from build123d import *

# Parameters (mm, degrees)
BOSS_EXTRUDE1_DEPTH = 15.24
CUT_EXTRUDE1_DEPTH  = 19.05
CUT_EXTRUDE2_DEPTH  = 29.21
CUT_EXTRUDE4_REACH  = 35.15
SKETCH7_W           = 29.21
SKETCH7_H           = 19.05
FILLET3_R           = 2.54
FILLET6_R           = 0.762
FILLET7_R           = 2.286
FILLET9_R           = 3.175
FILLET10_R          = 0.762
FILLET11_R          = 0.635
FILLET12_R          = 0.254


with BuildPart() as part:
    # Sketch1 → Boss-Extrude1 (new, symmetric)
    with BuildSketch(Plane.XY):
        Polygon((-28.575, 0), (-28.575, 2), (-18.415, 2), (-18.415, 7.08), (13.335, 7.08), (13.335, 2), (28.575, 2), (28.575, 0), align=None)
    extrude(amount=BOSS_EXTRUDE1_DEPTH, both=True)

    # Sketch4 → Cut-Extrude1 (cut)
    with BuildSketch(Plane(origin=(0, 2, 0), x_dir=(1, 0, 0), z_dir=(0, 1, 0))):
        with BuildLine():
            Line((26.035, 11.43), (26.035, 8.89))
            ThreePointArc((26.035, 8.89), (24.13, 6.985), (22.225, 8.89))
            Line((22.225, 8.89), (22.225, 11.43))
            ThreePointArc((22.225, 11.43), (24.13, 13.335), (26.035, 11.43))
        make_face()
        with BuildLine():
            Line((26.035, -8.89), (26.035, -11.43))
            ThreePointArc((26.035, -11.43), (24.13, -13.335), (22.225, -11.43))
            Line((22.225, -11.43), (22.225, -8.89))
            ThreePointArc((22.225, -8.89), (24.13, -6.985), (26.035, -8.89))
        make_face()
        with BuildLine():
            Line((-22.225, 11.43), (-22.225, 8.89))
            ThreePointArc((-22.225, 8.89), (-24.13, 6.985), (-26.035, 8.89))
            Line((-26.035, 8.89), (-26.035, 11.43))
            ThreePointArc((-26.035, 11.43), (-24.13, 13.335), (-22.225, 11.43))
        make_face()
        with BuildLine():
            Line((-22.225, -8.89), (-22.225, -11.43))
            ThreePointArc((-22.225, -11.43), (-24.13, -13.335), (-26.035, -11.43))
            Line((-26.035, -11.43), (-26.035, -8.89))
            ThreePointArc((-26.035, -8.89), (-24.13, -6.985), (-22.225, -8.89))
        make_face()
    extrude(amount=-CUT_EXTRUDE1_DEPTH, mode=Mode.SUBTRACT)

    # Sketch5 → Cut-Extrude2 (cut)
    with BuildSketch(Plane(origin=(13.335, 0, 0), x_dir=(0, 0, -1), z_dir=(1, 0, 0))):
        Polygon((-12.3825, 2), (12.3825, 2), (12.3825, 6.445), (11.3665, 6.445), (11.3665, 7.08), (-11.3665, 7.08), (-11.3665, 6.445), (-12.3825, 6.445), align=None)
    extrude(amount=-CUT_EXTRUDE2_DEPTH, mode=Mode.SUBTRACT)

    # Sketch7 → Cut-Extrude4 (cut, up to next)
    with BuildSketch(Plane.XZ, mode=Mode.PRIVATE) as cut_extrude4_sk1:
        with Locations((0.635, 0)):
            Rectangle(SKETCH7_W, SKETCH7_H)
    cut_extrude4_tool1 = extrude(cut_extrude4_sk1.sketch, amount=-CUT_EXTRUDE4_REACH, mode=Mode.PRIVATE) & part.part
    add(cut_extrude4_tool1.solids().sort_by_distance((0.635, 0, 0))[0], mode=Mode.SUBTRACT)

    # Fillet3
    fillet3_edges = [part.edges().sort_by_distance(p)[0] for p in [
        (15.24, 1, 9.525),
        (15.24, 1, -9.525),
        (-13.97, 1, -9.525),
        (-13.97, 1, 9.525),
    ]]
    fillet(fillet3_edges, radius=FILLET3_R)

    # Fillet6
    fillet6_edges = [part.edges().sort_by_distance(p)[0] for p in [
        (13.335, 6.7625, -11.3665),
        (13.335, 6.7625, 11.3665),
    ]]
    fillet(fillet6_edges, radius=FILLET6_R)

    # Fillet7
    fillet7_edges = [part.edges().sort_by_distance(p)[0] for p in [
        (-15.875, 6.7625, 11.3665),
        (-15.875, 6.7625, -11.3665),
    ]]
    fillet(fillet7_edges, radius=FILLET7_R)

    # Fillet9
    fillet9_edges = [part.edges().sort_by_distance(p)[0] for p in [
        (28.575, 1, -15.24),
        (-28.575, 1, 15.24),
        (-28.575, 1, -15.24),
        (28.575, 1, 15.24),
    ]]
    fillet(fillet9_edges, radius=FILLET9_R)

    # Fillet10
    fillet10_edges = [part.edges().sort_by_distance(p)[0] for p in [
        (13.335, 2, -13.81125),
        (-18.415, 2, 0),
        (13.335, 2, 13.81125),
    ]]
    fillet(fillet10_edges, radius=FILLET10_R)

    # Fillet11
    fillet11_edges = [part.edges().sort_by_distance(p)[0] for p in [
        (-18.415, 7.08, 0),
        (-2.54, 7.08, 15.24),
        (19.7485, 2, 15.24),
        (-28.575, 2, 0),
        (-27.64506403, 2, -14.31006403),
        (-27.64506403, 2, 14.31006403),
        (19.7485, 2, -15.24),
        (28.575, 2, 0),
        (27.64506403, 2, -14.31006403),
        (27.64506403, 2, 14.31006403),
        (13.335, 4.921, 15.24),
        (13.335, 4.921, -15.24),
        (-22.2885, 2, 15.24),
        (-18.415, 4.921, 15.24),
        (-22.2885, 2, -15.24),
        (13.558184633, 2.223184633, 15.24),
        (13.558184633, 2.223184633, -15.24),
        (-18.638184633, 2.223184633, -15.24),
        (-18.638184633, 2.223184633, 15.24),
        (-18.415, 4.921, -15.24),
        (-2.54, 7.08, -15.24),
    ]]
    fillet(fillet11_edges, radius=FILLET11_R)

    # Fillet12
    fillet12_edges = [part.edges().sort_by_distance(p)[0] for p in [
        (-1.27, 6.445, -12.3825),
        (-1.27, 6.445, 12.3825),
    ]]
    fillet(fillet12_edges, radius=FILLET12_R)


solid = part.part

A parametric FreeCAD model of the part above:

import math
import FreeCAD as App
import Part
import Sketcher
Q = App.Units.Quantity


def edges_at(feature, points):
    """Names of the edges that pass closest to the given points."""
    edges = feature.Shape.Edges
    near = lambda p: min(range(len(edges)), key=lambda i: edges[i].distToShape(Part.Vertex(*p))[0])
    return sorted({f"Edge{near(p) + 1}" for p in points})

doc = App.newDocument("Part")
body = doc.addObject("PartDesign::Body", "Body")

# Sketch on XY plane
sketch1 = doc.addObject("Sketcher::SketchObject", "Sketch")
body.addObject(sketch1)
sketch1.AttachmentSupport = (doc.XY_Plane, [""])
sketch1.MapMode = "FlatFace"
sketch1.addGeometry(Part.LineSegment(App.Vector(-28.6, 2, 0), App.Vector(-28.6, 0, 0)), False)
sketch1.addGeometry(Part.LineSegment(App.Vector(-28.6, 0, 0), App.Vector(28.6, 0, 0)), False)
sketch1.addGeometry(Part.LineSegment(App.Vector(28.6, 0, 0), App.Vector(28.6, 2, 0)), False)
sketch1.addGeometry(Part.LineSegment(App.Vector(28.6, 2, 0), App.Vector(13.3, 2, 0)), False)
sketch1.addGeometry(Part.LineSegment(App.Vector(13.3, 2, 0), App.Vector(13.3, 7.1, 0)), False)
sketch1.addGeometry(Part.LineSegment(App.Vector(13.3, 7.1, 0), App.Vector(-18.4, 7.1, 0)), False)
sketch1.addGeometry(Part.LineSegment(App.Vector(-18.4, 7.1, 0), App.Vector(-18.4, 2, 0)), False)
sketch1.addGeometry(Part.LineSegment(App.Vector(-18.4, 2, 0), App.Vector(-28.6, 2, 0)), False)
sketch1.addConstraint(Sketcher.Constraint("Coincident", 0, 2, 1, 1))
sketch1.addConstraint(Sketcher.Constraint("Coincident", 1, 2, 2, 1))
sketch1.addConstraint(Sketcher.Constraint("Coincident", 2, 2, 3, 1))
sketch1.addConstraint(Sketcher.Constraint("Coincident", 3, 2, 4, 1))
sketch1.addConstraint(Sketcher.Constraint("Coincident", 4, 2, 5, 1))
sketch1.addConstraint(Sketcher.Constraint("Coincident", 5, 2, 6, 1))
sketch1.addConstraint(Sketcher.Constraint("Coincident", 6, 2, 7, 1))
sketch1.addConstraint(Sketcher.Constraint("Coincident", 7, 2, 0, 1))
sketch1.addConstraint(Sketcher.Constraint("Vertical", 0))
sketch1.addConstraint(Sketcher.Constraint("Horizontal", 1))
sketch1.addConstraint(Sketcher.Constraint("Vertical", 2))
sketch1.addConstraint(Sketcher.Constraint("Horizontal", 3))
sketch1.addConstraint(Sketcher.Constraint("Vertical", 4))
sketch1.addConstraint(Sketcher.Constraint("Horizontal", 5))
sketch1.addConstraint(Sketcher.Constraint("Vertical", 6))
sketch1.addConstraint(Sketcher.Constraint("Horizontal", 7))
sketch1.addConstraint(Sketcher.Constraint("Symmetric", 0, 2, 1, 2, -1, 1))
sketch1.addConstraint(Sketcher.Constraint("Horizontal", 3, 2, 6, 2))
sketch1.addConstraint(Sketcher.Constraint("DistanceX", 3, 2, 3, 1, Q("0.6 in")))
sketch1.addConstraint(Sketcher.Constraint("DistanceX", 7, 2, 7, 1, Q("0.4 in")))
sketch1.addConstraint(Sketcher.Constraint("DistanceY", 4, 1, 4, 2, Q("0.2 in")))
sketch1.addConstraint(Sketcher.Constraint("DistanceX", 1, 1, 1, 2, Q("2.25 in")))
sketch1.addConstraint(Sketcher.Constraint("DistanceY", 0, 2, 0, 1, 2.0))
pad1 = doc.addObject("PartDesign::Pad", "Pad")
body.addObject(pad1)
pad1.Profile = sketch1
pad1.Length = Q("1.2 in")
pad1.Midplane = True

# Sketch on XZ plane
sketch2 = doc.addObject("Sketcher::SketchObject", "Sketch001")
body.addObject(sketch2)
sketch2.AttachmentSupport = (doc.XZ_Plane, [""])
sketch2.MapMode = "FlatFace"
sketch2.AttachmentOffset = App.Placement(App.Vector(0, 0, -2), App.Rotation())
sketch2.addGeometry(Part.LineSegment(App.Vector(26, -8.9, 0), App.Vector(26, -11.4, 0)), False)
sketch2.addGeometry(Part.ArcOfCircle(Part.Circle(App.Vector(24.1, -11.4, 0), App.Vector(0, 0, 1), 1.9), math.radians(180), math.radians(360)), False)
sketch2.addGeometry(Part.LineSegment(App.Vector(22.2, -11.4, 0), App.Vector(22.2, -8.9, 0)), False)
sketch2.addGeometry(Part.ArcOfCircle(Part.Circle(App.Vector(24.1, -8.9, 0), App.Vector(0, 0, 1), 1.9), math.radians(0), math.radians(180)), False)
sketch2.addGeometry(Part.LineSegment(App.Vector(26, 11.4, 0), App.Vector(26, 8.9, 0)), False)
sketch2.addGeometry(Part.ArcOfCircle(Part.Circle(App.Vector(24.1, 8.9, 0), App.Vector(0, 0, 1), 1.9), math.radians(180), math.radians(360)), False)
sketch2.addGeometry(Part.LineSegment(App.Vector(22.2, 8.9, 0), App.Vector(22.2, 11.4, 0)), False)
sketch2.addGeometry(Part.ArcOfCircle(Part.Circle(App.Vector(24.1, 11.4, 0), App.Vector(0, 0, 1), 1.9), math.radians(0), math.radians(180)), False)
sketch2.addGeometry(Part.LineSegment(App.Vector(-22.2, -8.9, 0), App.Vector(-22.2, -11.4, 0)), False)
sketch2.addGeometry(Part.ArcOfCircle(Part.Circle(App.Vector(-24.1, -11.4, 0), App.Vector(0, 0, 1), 1.9), math.radians(180), math.radians(360)), False)
sketch2.addGeometry(Part.LineSegment(App.Vector(-26, -11.4, 0), App.Vector(-26, -8.9, 0)), False)
sketch2.addGeometry(Part.ArcOfCircle(Part.Circle(App.Vector(-24.1, -8.9, 0), App.Vector(0, 0, 1), 1.9), math.radians(0), math.radians(180)), False)
sketch2.addGeometry(Part.LineSegment(App.Vector(-22.2, 11.4, 0), App.Vector(-22.2, 8.9, 0)), False)
sketch2.addGeometry(Part.ArcOfCircle(Part.Circle(App.Vector(-24.1, 8.9, 0), App.Vector(0, 0, 1), 1.9), math.radians(180), math.radians(360)), False)
sketch2.addGeometry(Part.LineSegment(App.Vector(-26, 8.9, 0), App.Vector(-26, 11.4, 0)), False)
sketch2.addGeometry(Part.ArcOfCircle(Part.Circle(App.Vector(-24.1, 11.4, 0), App.Vector(0, 0, 1), 1.9), math.radians(0), math.radians(180)), False)
sketch2.addConstraint(Sketcher.Constraint("Tangent", 0, 2, 1, 2))
sketch2.addConstraint(Sketcher.Constraint("Tangent", 1, 1, 2, 1))
sketch2.addConstraint(Sketcher.Constraint("Tangent", 2, 2, 3, 2))
sketch2.addConstraint(Sketcher.Constraint("Tangent", 3, 1, 0, 1))
sketch2.addConstraint(Sketcher.Constraint("Tangent", 4, 2, 5, 2))
sketch2.addConstraint(Sketcher.Constraint("Tangent", 5, 1, 6, 1))
sketch2.addConstraint(Sketcher.Constraint("Tangent", 6, 2, 7, 2))
sketch2.addConstraint(Sketcher.Constraint("Tangent", 7, 1, 4, 1))
sketch2.addConstraint(Sketcher.Constraint("Tangent", 8, 2, 9, 2))
sketch2.addConstraint(Sketcher.Constraint("Tangent", 9, 1, 10, 1))
sketch2.addConstraint(Sketcher.Constraint("Tangent", 10, 2, 11, 2))
sketch2.addConstraint(Sketcher.Constraint("Tangent", 11, 1, 8, 1))
sketch2.addConstraint(Sketcher.Constraint("Tangent", 12, 2, 13, 2))
sketch2.addConstraint(Sketcher.Constraint("Tangent", 13, 1, 14, 1))
sketch2.addConstraint(Sketcher.Constraint("Tangent", 14, 2, 15, 2))
sketch2.addConstraint(Sketcher.Constraint("Tangent", 15, 1, 12, 1))
sketch2.addConstraint(Sketcher.Constraint("Vertical", 0))
sketch2.addConstraint(Sketcher.Constraint("Vertical", 2))
sketch2.addConstraint(Sketcher.Constraint("Vertical", 4))
sketch2.addConstraint(Sketcher.Constraint("Vertical", 6))
sketch2.addConstraint(Sketcher.Constraint("Vertical", 8))
sketch2.addConstraint(Sketcher.Constraint("Vertical", 10))
sketch2.addConstraint(Sketcher.Constraint("Vertical", 12))
sketch2.addConstraint(Sketcher.Constraint("Vertical", 14))
sketch2.addConstraint(Sketcher.Constraint("Equal", 3, 5))
sketch2.addConstraint(Sketcher.Constraint("Equal", 7, 9))
sketch2.addConstraint(Sketcher.Constraint("Equal", 11, 13))
sketch2.addConstraint(Sketcher.Constraint("Symmetric", 7, 3, 9, 3, -1, 1))
sketch2.addConstraint(Sketcher.Constraint("Symmetric", 3, 3, 13, 3, -1, 1))
sketch2.addConstraint(Sketcher.Constraint("Symmetric", 1, 3, 9, 3, -2))
sketch2.addConstraint(Sketcher.Constraint("Horizontal", 3, 3, 11, 3))
sketch2.addConstraint(Sketcher.Constraint("Horizontal", 5, 3, 13, 3))
sketch2.addConstraint(Sketcher.Constraint("Horizontal", 7, 3, 15, 3))
sketch2.addConstraint(Sketcher.Constraint("DistanceY", 0, 2, 0, 1, Q("0.1 in")))
sketch2.addConstraint(Sketcher.Constraint("Radius", 1, Q("0.075 in")))
sketch2.addConstraint(Sketcher.Constraint("DistanceY", 3, 3, 5, 3, Q("0.7 in")))
sketch2.addConstraint(Sketcher.Constraint("DistanceX", 9, 3, 1, 3, Q("1.9 in")))
pocket1 = doc.addObject("PartDesign::Pocket", "Pocket")
body.addObject(pocket1)
pocket1.Profile = sketch2
pocket1.Length = Q("0.75 in")
pocket1.Reversed = True

# Sketch on YZ plane
sketch3 = doc.addObject("Sketcher::SketchObject", "Sketch002")
body.addObject(sketch3)
sketch3.AttachmentSupport = (doc.YZ_Plane, [""])
sketch3.MapMode = "FlatFace"
sketch3.AttachmentOffset = App.Placement(App.Vector(0, 0, 0.525 * 25.4), App.Rotation())
sketch3.addGeometry(Part.LineSegment(App.Vector(2, 12.4, 0), App.Vector(2, -12.4, 0)), False)
sketch3.addGeometry(Part.LineSegment(App.Vector(2, -12.4, 0), App.Vector(6.4, -12.4, 0)), False)
sketch3.addGeometry(Part.LineSegment(App.Vector(6.4, -12.4, 0), App.Vector(6.4, -11.4, 0)), False)
sketch3.addGeometry(Part.LineSegment(App.Vector(6.4, -11.4, 0), App.Vector(7.1, -11.4, 0)), False)
sketch3.addGeometry(Part.LineSegment(App.Vector(7.1, -11.4, 0), App.Vector(7.1, 11.4, 0)), False)
sketch3.addGeometry(Part.LineSegment(App.Vector(7.1, 11.4, 0), App.Vector(6.4, 11.4, 0)), False)
sketch3.addGeometry(Part.LineSegment(App.Vector(6.4, 11.4, 0), App.Vector(6.4, 12.4, 0)), False)
sketch3.addGeometry(Part.LineSegment(App.Vector(6.4, 12.4, 0), App.Vector(2, 12.4, 0)), False)
sketch3.addConstraint(Sketcher.Constraint("Coincident", 0, 2, 1, 1))
sketch3.addConstraint(Sketcher.Constraint("Coincident", 1, 2, 2, 1))
sketch3.addConstraint(Sketcher.Constraint("Coincident", 2, 2, 3, 1))
sketch3.addConstraint(Sketcher.Constraint("Coincident", 3, 2, 4, 1))
sketch3.addConstraint(Sketcher.Constraint("Coincident", 4, 2, 5, 1))
sketch3.addConstraint(Sketcher.Constraint("Coincident", 5, 2, 6, 1))
sketch3.addConstraint(Sketcher.Constraint("Coincident", 6, 2, 7, 1))
sketch3.addConstraint(Sketcher.Constraint("Coincident", 7, 2, 0, 1))
sketch3.addConstraint(Sketcher.Constraint("Vertical", 0))
sketch3.addConstraint(Sketcher.Constraint("Horizontal", 1))
sketch3.addConstraint(Sketcher.Constraint("Vertical", 2))
sketch3.addConstraint(Sketcher.Constraint("Horizontal", 3))
sketch3.addConstraint(Sketcher.Constraint("Vertical", 4))
sketch3.addConstraint(Sketcher.Constraint("Horizontal", 5))
sketch3.addConstraint(Sketcher.Constraint("Vertical", 6))
sketch3.addConstraint(Sketcher.Constraint("Horizontal", 7))
sketch3.addConstraint(Sketcher.Constraint("Symmetric", 2, 2, 5, 2, -1))
sketch3.addConstraint(Sketcher.Constraint("Equal", 2, 6))
sketch3.addConstraint(Sketcher.Constraint("DistanceY", 2, 1, 2, 2, Q("0.04 in")))
sketch3.addConstraint(Sketcher.Constraint("DistanceX", 0, 2, 3, 2, Q("0.2 in")))
sketch3.addConstraint(Sketcher.Constraint("DistanceX", 1, 1, 1, 2, Q("0.175 in")))
sketch3.addConstraint(Sketcher.Constraint("DistanceY", 0, 2, 0, 1, Q("0.975 in")))
sketch3.addConstraint(Sketcher.Constraint("DistanceX", -1, 1, 0, 2, 2.0))
pocket2 = doc.addObject("PartDesign::Pocket", "Pocket001")
body.addObject(pocket2)
pocket2.Profile = sketch3
pocket2.Length = Q("1.15 in")

# Sketch on XZ plane
sketch4 = doc.addObject("Sketcher::SketchObject", "Sketch003")
body.addObject(sketch4)
sketch4.AttachmentSupport = (doc.XZ_Plane, [""])
sketch4.MapMode = "FlatFace"
sketch4.addGeometry(Part.LineSegment(App.Vector(-14, 10, 0), App.Vector(-14, -10, 0)), False)
sketch4.addGeometry(Part.LineSegment(App.Vector(-14, -10, 0), App.Vector(15, -10, 0)), False)
sketch4.addGeometry(Part.LineSegment(App.Vector(15, -10, 0), App.Vector(15, 10, 0)), False)
sketch4.addGeometry(Part.LineSegment(App.Vector(15, 10, 0), App.Vector(-14, 10, 0)), False)
sketch4.addConstraint(Sketcher.Constraint("Coincident", 0, 2, 1, 1))
sketch4.addConstraint(Sketcher.Constraint("Coincident", 1, 2, 2, 1))
sketch4.addConstraint(Sketcher.Constraint("Coincident", 2, 2, 3, 1))
sketch4.addConstraint(Sketcher.Constraint("Coincident", 3, 2, 0, 1))
sketch4.addConstraint(Sketcher.Constraint("Vertical", 0))
sketch4.addConstraint(Sketcher.Constraint("Horizontal", 1))
sketch4.addConstraint(Sketcher.Constraint("Vertical", 2))
sketch4.addConstraint(Sketcher.Constraint("Horizontal", 3))
sketch4.addConstraint(Sketcher.Constraint("DistanceX", 1, 1, 1, 2, Q("1.15 in")))
sketch4.addConstraint(Sketcher.Constraint("DistanceY", 0, 2, 0, 1, Q("0.75 in")))
sketch4.addConstraint(Sketcher.Constraint("DistanceX", -1, 1, 1, 2, Q("0.6 in")))
sketch4.addConstraint(Sketcher.Constraint("DistanceY", 0, 2, -1, 1, Q("0.375 in")))
pocket3 = doc.addObject("PartDesign::Pocket", "Pocket002")
body.addObject(pocket3)
pocket3.Profile = sketch4
pocket3.Type = "UpToFirst"
doc.recompute()

fillet = doc.addObject("PartDesign::Fillet", "Fillet")
body.addObject(fillet)
fillet.Base = (pocket3, edges_at(pocket3, [
    (15.24, 1, 9.525),
    (15.24, 1, -9.525),
    (-13.97, 1, -9.525),
    (-13.97, 1, 9.525),
]))
fillet.Radius = Q("0.1 in")
doc.recompute()

fillet2 = doc.addObject("PartDesign::Fillet", "Fillet001")
body.addObject(fillet2)
fillet2.Base = (fillet, edges_at(fillet, [(13.335, 6.763, -11.367), (13.335, 6.763, 11.367)]))
fillet2.Radius = Q("0.03 in")
doc.recompute()

fillet3 = doc.addObject("PartDesign::Fillet", "Fillet002")
body.addObject(fillet3)
fillet3.Base = (fillet2, edges_at(fillet2, [(-15.875, 6.763, 11.367), (-15.875, 6.763, -11.367)]))
fillet3.Radius = Q("0.09 in")
doc.recompute()

fillet4 = doc.addObject("PartDesign::Fillet", "Fillet003")
body.addObject(fillet4)
fillet4.Base = (fillet3, edges_at(fillet3, [
    (28.575, 1, -15.24),
    (-28.575, 1, 15.24),
    (-28.575, 1, -15.24),
    (28.575, 1, 15.24),
]))
fillet4.Radius = Q("0.125 in")
doc.recompute()

fillet5 = doc.addObject("PartDesign::Fillet", "Fillet004")
body.addObject(fillet5)
fillet5.Base = (fillet4, edges_at(fillet4, [(13.335, 2, -13.811), (-18.415, 2, 0), (13.335, 2, 13.811)]))
fillet5.Radius = Q("0.03 in")
doc.recompute()

fillet6 = doc.addObject("PartDesign::Fillet", "Fillet005")
body.addObject(fillet6)
fillet6.Base = (fillet5, edges_at(fillet5, [
    (-18.415, 7.08, 0),
    (-2.54, 7.08, 15.24),
    (19.748, 2, 15.24),
    (-28.575, 2, 0),
    (-27.645, 2, -14.31),
    (-27.645, 2, 14.31),
    (19.748, 2, -15.24),
    (28.575, 2, 0),
    (27.645, 2, -14.31),
    (27.645, 2, 14.31),
    (13.335, 4.921, 15.24),
    (13.335, 4.921, -15.24),
    (-22.288, 2, 15.24),
    (-18.415, 4.921, 15.24),
    (-22.288, 2, -15.24),
    (13.558, 2.223, 15.24),
    (13.558, 2.223, -15.24),
    (-18.638, 2.223, -15.24),
    (-18.638, 2.223, 15.24),
    (-18.415, 4.921, -15.24),
    (-2.54, 7.08, -15.24),
]))
fillet6.Radius = Q("0.025 in")
doc.recompute()

fillet7 = doc.addObject("PartDesign::Fillet", "Fillet006")
body.addObject(fillet7)
fillet7.Base = (fillet6, edges_at(fillet6, [(-1.27, 6.445, -12.383), (-1.27, 6.445, 12.383)]))
fillet7.Radius = Q("0.01 in")

doc.recompute()
